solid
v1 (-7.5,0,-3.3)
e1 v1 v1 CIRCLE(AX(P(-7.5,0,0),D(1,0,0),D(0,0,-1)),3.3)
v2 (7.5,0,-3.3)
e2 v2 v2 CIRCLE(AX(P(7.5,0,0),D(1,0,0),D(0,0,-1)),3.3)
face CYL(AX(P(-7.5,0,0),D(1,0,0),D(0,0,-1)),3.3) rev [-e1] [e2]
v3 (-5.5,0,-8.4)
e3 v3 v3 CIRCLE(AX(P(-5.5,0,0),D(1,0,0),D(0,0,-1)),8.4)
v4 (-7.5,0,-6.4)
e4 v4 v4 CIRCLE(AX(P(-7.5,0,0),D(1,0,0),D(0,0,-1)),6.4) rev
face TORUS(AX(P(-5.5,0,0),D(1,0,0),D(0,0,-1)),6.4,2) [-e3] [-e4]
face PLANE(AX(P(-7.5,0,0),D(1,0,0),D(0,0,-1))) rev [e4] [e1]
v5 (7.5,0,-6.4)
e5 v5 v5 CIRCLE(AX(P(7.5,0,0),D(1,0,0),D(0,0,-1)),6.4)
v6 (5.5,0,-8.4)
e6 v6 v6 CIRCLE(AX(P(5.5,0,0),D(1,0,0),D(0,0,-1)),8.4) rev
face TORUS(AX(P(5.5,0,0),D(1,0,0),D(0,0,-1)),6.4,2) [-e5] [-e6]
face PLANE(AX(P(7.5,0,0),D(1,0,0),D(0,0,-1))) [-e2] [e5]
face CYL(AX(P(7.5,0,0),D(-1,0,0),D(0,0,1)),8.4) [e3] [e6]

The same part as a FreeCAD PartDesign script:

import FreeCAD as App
import Part
import Sketcher
from FreeCAD import Vector
Q = App.Units.Quantity


def edges_at(feature, points):
    """Names of the edges that pass closest to the given points."""
    edges = feature.Shape.Edges
    near = lambda p: min(range(len(edges)), key=lambda i: edges[i].distToShape(Part.Vertex(*p))[0])
    return sorted({f"Edge{near(p) + 1}" for p in points})

doc = App.newDocument("Part")
body = doc.addObject("PartDesign::Body", "Body")

# Sketch on YZ plane
sketch1 = body.newObject("Sketcher::SketchObject", "Sketch")
sketch1.AttachmentSupport = (doc.getObject("YZ_Plane"), [""])
sketch1.MapMode = "FlatFace"
sketch1.addGeometry(Part.Circle(Vector(0, 0, 0), Vector(0, 0, 1), 8), False)
sketch1.addConstraint([
    Sketcher.Constraint("Coincident", 0, 3, -1, 1),
    Sketcher.Constraint("Diameter", 0, Q("16.8 mm")),
])
pad1 = body.newObject("PartDesign::Pad", "Pad")
pad1.Profile = sketch1
pad1.Length = 15
pad1.Midplane = True

# Sketch on YZ plane
sketch2 = body.newObject("Sketcher::SketchObject", "Sketch001")
sketch2.AttachmentSupport = (doc.getObject("YZ_Plane"), [""])
sketch2.MapMode = "FlatFace"
sketch2.AttachmentOffset = App.Placement(Vector(0, 0, 7.5), App.Rotation())
sketch2.addGeometry(Part.Circle(Vector(0, 0, 0), Vector(0, 0, 1), 3.3), False)
sketch2.addConstraint([
    Sketcher.Constraint("Coincident", 0, 3, -1, 1),
    Sketcher.Constraint("Diameter", 0, Q("6.6 mm")),
])
pocket1 = body.newObject("PartDesign::Pocket", "Pocket")
pocket1.Profile = sketch2
pocket1.Length = 15
doc.recompute()

fillet = body.newObject("PartDesign::Fillet", "Fillet")
fillet.Base = (pocket1, edges_at(pocket1, [(-7.5, 0, 8.4), (7.5, 0, 8.4)]))
fillet.Radius = 2

doc.recompute()
